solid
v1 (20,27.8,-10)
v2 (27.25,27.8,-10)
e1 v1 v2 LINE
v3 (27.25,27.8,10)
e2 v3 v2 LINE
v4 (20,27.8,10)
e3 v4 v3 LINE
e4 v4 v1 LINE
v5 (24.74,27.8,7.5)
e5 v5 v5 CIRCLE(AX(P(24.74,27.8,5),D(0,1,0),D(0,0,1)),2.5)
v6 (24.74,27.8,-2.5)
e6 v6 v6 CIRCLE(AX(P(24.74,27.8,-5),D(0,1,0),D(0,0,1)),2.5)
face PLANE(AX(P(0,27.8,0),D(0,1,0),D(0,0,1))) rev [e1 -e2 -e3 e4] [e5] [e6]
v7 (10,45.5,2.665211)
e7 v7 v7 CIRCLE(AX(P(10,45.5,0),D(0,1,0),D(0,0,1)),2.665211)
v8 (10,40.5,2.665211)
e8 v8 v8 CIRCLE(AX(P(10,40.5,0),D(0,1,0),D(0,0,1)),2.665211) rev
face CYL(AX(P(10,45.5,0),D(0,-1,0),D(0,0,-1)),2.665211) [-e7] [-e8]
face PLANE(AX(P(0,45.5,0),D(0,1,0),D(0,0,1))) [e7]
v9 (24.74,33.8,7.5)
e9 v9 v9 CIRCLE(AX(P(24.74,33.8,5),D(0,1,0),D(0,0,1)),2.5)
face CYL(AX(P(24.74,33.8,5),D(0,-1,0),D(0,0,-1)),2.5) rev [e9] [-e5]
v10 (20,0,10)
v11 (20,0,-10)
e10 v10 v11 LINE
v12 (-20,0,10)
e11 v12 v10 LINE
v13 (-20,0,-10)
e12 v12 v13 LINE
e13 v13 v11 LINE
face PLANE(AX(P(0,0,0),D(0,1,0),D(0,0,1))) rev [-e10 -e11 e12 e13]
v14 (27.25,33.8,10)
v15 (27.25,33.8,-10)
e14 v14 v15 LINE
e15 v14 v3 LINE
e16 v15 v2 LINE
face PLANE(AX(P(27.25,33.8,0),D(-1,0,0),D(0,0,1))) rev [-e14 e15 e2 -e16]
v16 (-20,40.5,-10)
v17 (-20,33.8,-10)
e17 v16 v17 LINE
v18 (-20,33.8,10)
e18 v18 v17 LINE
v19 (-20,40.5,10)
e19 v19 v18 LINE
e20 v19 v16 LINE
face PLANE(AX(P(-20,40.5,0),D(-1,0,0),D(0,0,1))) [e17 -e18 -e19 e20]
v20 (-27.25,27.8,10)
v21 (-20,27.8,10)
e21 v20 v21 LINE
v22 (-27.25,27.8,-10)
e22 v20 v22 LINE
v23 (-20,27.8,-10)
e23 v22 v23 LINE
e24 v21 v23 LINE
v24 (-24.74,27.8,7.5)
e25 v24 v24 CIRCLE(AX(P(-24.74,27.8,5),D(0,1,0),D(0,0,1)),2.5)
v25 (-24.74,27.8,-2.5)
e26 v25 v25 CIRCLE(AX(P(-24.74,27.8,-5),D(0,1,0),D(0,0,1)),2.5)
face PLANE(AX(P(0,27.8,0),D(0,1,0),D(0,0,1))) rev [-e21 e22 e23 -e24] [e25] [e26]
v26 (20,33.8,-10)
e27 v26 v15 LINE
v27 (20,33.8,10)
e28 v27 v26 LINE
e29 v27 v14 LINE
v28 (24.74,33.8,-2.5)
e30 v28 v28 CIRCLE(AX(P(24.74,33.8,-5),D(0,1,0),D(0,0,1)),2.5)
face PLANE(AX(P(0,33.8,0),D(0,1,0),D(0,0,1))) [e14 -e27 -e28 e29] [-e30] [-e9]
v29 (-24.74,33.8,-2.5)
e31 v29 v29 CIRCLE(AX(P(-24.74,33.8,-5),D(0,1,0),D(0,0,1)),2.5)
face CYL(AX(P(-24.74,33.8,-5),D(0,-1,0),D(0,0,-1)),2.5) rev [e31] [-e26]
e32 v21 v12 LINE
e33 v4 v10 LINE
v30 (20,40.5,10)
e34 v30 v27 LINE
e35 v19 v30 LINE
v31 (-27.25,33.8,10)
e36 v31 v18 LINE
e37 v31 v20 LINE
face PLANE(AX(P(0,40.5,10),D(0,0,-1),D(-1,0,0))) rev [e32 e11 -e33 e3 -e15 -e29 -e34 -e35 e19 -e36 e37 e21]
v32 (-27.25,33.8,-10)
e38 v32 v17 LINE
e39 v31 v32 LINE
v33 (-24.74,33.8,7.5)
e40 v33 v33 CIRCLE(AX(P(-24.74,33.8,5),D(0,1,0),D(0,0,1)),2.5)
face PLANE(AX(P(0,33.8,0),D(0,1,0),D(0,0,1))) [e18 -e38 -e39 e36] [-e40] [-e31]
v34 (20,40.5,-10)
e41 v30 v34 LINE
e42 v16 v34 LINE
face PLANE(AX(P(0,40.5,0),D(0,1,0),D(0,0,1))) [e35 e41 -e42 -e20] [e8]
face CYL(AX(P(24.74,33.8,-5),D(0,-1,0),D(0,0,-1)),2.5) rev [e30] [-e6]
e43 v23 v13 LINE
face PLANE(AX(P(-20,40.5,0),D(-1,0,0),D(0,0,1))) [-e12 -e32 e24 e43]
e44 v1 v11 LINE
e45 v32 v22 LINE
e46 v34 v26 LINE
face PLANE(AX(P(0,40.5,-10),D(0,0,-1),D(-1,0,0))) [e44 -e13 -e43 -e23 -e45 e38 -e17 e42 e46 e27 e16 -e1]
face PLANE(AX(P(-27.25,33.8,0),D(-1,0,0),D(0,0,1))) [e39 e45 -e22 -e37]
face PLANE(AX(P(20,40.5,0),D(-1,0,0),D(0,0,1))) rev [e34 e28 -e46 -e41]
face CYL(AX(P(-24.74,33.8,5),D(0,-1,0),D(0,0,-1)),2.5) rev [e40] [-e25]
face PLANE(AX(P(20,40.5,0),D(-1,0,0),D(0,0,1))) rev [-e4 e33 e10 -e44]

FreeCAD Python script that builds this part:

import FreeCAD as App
import Part
import Sketcher
Q = App.Units.Quantity


def add_polygon(sketch, points):
    """Adds a closed chain of lines whose ends are joined by coincident constraints."""
    first, n = sketch.GeometryCount, len(points)
    for a, b in zip(points, points[1:] + points[:1]):
        sketch.addGeometry(Part.LineSegment(App.Vector(*a, 0), App.Vector(*b, 0)), False)
    for i in range(n):
        sketch.addConstraint(Sketcher.Constraint("Coincident", first + i, 2, first + (i + 1) % n, 1))

doc = App.newDocument("Part")
body = doc.addObject("PartDesign::Body", "Body")

sketch1 = body.newObject("Sketcher::SketchObject", "Sketch")
sketch1.AttachmentSupport = (doc.getObject("XZ_Plane"), [""])
sketch1.MapMode = "FlatFace"
add_polygon(sketch1, [(-20, -10), (-20, 10), (20, 10), (20, -10)])
sketch1.addConstraint(Sketcher.Constraint("Vertical", 0))
sketch1.addConstraint(Sketcher.Constraint("Horizontal", 1))
sketch1.addConstraint(Sketcher.Constraint("Vertical", 2))
sketch1.addConstraint(Sketcher.Constraint("Horizontal", 3))
sketch1.addConstraint(Sketcher.Constraint("Symmetric", 0, 2, 2, 2, -1, 1))
sketch1.addConstraint(Sketcher.Constraint("DistanceX", 1, 1, 1, 2, Q("40 mm")))
sketch1.addConstraint(Sketcher.Constraint("DistanceY", 0, 1, 0, 2, Q("20 mm")))
pad1 = body.newObject("PartDesign::Pad", "Pad")
pad1.Profile = sketch1
pad1.Length = 40.5
pad1.Reversed = True

sketch2 = body.newObject("Sketcher::SketchObject", "Sketch001")
sketch2.AttachmentSupport = (doc.getObject("XZ_Plane"), [""])
sketch2.MapMode = "FlatFace"
sketch2.AttachmentOffset = App.Placement(App.Vector(0, 0, -27.8), App.Rotation())
add_polygon(sketch2, [(-27.25, -10), (-27.25, 10), (-20, 10), (-20, -10)])
sketch2.addGeometry(Part.Circle(App.Vector(-24.74, 5, 0), App.Vector(0, 0, 1), 2.5), False)
sketch2.addGeometry(Part.Circle(App.Vector(-24.74, -5, 0), App.Vector(0, 0, 1), 2.5), False)
add_polygon(sketch2, [(20, -10), (20, 10), (27.25, 10), (27.25, -10)])
sketch2.addGeometry(Part.Circle(App.Vector(24.74, 5, 0), App.Vector(0, 0, 1), 2.5), False)
sketch2.addGeometry(Part.Circle(App.Vector(24.74, -5, 0), App.Vector(0, 0, 1), 2.5), False)
sketch2.addConstraint(Sketcher.Constraint("Vertical", 0))
sketch2.addConstraint(Sketcher.Constraint("Horizontal", 1))
sketch2.addConstraint(Sketcher.Constraint("Vertical", 2))
sketch2.addConstraint(Sketcher.Constraint("Horizontal", 3))
sketch2.addConstraint(Sketcher.Constraint("Vertical", 6))
sketch2.addConstraint(Sketcher.Constraint("Horizontal", 7))
sketch2.addConstraint(Sketcher.Constraint("Vertical", 8))
sketch2.addConstraint(Sketcher.Constraint("Horizontal", 9))
sketch2.addConstraint(Sketcher.Constraint("Equal", 4, 5))
sketch2.addConstraint(Sketcher.Constraint("Equal", 5, 10))
sketch2.addConstraint(Sketcher.Constraint("Equal", 10, 11))
sketch2.addConstraint(Sketcher.Constraint("Symmetric", 5, 3, 10, 3, -1, 1))
sketch2.addConstraint(Sketcher.Constraint("Symmetric", 4, 3, 11, 3, -1, 1))
sketch2.addConstraint(Sketcher.Constraint("Symmetric", 2, 2, 6, 2, -1, 1))
sketch2.addConstraint(Sketcher.Constraint("Symmetric", 0, 2, 8, 2, -1, 1))
sketch2.addConstraint(Sketcher.Constraint("Symmetric", 4, 3, 10, 3, -2))
sketch2.addConstraint(Sketcher.Constraint("Horizontal", 1, 2, 6, 2))
sketch2.addConstraint(Sketcher.Constraint("Diameter", 4, Q("5 mm")))
sketch2.addConstraint(Sketcher.Constraint("DistanceY", 0, 1, 0, 2, Q("20 mm")))
sketch2.addConstraint(Sketcher.Constraint("DistanceY", -1, 1, 4, 3, Q("5 mm")))
sketch2.addConstraint(Sketcher.Constraint("DistanceX", 1, 2, -1, 1, Q("20 mm")))
sketch2.addConstraint(Sketcher.Constraint("DistanceX", 1, 1, 1, 2, Q("7.25 mm")))
sketch2.addConstraint(Sketcher.Constraint("DistanceX", 4, 3, -1, 1, Q("24.74 mm")))
pad2 = body.newObject("PartDesign::Pad", "Pad001")
pad2.Profile = sketch2
pad2.Length = 6
pad2.Reversed = True

sketch3 = body.newObject("Sketcher::SketchObject", "Sketch002")
sketch3.AttachmentSupport = (doc.getObject("XZ_Plane"), [""])
sketch3.MapMode = "FlatFace"
sketch3.addGeometry(Part.Circle(App.Vector(10, 0, 0), App.Vector(0, 0, 1), 2.665211), False)
sketch3.addConstraint(Sketcher.Constraint("PointOnObject", 0, 3, -1))
sketch3.addConstraint(Sketcher.Constraint("DistanceX", -1, 1, 0, 3, Q("10 mm")))
sketch3.addConstraint(Sketcher.Constraint("Diameter", 0, Q("5.330423 mm")))
pad3 = body.newObject("PartDesign::Pad", "Pad002")
pad3.Profile = sketch3
pad3.Length = 45.5
pad3.Reversed = True

doc.recompute()
